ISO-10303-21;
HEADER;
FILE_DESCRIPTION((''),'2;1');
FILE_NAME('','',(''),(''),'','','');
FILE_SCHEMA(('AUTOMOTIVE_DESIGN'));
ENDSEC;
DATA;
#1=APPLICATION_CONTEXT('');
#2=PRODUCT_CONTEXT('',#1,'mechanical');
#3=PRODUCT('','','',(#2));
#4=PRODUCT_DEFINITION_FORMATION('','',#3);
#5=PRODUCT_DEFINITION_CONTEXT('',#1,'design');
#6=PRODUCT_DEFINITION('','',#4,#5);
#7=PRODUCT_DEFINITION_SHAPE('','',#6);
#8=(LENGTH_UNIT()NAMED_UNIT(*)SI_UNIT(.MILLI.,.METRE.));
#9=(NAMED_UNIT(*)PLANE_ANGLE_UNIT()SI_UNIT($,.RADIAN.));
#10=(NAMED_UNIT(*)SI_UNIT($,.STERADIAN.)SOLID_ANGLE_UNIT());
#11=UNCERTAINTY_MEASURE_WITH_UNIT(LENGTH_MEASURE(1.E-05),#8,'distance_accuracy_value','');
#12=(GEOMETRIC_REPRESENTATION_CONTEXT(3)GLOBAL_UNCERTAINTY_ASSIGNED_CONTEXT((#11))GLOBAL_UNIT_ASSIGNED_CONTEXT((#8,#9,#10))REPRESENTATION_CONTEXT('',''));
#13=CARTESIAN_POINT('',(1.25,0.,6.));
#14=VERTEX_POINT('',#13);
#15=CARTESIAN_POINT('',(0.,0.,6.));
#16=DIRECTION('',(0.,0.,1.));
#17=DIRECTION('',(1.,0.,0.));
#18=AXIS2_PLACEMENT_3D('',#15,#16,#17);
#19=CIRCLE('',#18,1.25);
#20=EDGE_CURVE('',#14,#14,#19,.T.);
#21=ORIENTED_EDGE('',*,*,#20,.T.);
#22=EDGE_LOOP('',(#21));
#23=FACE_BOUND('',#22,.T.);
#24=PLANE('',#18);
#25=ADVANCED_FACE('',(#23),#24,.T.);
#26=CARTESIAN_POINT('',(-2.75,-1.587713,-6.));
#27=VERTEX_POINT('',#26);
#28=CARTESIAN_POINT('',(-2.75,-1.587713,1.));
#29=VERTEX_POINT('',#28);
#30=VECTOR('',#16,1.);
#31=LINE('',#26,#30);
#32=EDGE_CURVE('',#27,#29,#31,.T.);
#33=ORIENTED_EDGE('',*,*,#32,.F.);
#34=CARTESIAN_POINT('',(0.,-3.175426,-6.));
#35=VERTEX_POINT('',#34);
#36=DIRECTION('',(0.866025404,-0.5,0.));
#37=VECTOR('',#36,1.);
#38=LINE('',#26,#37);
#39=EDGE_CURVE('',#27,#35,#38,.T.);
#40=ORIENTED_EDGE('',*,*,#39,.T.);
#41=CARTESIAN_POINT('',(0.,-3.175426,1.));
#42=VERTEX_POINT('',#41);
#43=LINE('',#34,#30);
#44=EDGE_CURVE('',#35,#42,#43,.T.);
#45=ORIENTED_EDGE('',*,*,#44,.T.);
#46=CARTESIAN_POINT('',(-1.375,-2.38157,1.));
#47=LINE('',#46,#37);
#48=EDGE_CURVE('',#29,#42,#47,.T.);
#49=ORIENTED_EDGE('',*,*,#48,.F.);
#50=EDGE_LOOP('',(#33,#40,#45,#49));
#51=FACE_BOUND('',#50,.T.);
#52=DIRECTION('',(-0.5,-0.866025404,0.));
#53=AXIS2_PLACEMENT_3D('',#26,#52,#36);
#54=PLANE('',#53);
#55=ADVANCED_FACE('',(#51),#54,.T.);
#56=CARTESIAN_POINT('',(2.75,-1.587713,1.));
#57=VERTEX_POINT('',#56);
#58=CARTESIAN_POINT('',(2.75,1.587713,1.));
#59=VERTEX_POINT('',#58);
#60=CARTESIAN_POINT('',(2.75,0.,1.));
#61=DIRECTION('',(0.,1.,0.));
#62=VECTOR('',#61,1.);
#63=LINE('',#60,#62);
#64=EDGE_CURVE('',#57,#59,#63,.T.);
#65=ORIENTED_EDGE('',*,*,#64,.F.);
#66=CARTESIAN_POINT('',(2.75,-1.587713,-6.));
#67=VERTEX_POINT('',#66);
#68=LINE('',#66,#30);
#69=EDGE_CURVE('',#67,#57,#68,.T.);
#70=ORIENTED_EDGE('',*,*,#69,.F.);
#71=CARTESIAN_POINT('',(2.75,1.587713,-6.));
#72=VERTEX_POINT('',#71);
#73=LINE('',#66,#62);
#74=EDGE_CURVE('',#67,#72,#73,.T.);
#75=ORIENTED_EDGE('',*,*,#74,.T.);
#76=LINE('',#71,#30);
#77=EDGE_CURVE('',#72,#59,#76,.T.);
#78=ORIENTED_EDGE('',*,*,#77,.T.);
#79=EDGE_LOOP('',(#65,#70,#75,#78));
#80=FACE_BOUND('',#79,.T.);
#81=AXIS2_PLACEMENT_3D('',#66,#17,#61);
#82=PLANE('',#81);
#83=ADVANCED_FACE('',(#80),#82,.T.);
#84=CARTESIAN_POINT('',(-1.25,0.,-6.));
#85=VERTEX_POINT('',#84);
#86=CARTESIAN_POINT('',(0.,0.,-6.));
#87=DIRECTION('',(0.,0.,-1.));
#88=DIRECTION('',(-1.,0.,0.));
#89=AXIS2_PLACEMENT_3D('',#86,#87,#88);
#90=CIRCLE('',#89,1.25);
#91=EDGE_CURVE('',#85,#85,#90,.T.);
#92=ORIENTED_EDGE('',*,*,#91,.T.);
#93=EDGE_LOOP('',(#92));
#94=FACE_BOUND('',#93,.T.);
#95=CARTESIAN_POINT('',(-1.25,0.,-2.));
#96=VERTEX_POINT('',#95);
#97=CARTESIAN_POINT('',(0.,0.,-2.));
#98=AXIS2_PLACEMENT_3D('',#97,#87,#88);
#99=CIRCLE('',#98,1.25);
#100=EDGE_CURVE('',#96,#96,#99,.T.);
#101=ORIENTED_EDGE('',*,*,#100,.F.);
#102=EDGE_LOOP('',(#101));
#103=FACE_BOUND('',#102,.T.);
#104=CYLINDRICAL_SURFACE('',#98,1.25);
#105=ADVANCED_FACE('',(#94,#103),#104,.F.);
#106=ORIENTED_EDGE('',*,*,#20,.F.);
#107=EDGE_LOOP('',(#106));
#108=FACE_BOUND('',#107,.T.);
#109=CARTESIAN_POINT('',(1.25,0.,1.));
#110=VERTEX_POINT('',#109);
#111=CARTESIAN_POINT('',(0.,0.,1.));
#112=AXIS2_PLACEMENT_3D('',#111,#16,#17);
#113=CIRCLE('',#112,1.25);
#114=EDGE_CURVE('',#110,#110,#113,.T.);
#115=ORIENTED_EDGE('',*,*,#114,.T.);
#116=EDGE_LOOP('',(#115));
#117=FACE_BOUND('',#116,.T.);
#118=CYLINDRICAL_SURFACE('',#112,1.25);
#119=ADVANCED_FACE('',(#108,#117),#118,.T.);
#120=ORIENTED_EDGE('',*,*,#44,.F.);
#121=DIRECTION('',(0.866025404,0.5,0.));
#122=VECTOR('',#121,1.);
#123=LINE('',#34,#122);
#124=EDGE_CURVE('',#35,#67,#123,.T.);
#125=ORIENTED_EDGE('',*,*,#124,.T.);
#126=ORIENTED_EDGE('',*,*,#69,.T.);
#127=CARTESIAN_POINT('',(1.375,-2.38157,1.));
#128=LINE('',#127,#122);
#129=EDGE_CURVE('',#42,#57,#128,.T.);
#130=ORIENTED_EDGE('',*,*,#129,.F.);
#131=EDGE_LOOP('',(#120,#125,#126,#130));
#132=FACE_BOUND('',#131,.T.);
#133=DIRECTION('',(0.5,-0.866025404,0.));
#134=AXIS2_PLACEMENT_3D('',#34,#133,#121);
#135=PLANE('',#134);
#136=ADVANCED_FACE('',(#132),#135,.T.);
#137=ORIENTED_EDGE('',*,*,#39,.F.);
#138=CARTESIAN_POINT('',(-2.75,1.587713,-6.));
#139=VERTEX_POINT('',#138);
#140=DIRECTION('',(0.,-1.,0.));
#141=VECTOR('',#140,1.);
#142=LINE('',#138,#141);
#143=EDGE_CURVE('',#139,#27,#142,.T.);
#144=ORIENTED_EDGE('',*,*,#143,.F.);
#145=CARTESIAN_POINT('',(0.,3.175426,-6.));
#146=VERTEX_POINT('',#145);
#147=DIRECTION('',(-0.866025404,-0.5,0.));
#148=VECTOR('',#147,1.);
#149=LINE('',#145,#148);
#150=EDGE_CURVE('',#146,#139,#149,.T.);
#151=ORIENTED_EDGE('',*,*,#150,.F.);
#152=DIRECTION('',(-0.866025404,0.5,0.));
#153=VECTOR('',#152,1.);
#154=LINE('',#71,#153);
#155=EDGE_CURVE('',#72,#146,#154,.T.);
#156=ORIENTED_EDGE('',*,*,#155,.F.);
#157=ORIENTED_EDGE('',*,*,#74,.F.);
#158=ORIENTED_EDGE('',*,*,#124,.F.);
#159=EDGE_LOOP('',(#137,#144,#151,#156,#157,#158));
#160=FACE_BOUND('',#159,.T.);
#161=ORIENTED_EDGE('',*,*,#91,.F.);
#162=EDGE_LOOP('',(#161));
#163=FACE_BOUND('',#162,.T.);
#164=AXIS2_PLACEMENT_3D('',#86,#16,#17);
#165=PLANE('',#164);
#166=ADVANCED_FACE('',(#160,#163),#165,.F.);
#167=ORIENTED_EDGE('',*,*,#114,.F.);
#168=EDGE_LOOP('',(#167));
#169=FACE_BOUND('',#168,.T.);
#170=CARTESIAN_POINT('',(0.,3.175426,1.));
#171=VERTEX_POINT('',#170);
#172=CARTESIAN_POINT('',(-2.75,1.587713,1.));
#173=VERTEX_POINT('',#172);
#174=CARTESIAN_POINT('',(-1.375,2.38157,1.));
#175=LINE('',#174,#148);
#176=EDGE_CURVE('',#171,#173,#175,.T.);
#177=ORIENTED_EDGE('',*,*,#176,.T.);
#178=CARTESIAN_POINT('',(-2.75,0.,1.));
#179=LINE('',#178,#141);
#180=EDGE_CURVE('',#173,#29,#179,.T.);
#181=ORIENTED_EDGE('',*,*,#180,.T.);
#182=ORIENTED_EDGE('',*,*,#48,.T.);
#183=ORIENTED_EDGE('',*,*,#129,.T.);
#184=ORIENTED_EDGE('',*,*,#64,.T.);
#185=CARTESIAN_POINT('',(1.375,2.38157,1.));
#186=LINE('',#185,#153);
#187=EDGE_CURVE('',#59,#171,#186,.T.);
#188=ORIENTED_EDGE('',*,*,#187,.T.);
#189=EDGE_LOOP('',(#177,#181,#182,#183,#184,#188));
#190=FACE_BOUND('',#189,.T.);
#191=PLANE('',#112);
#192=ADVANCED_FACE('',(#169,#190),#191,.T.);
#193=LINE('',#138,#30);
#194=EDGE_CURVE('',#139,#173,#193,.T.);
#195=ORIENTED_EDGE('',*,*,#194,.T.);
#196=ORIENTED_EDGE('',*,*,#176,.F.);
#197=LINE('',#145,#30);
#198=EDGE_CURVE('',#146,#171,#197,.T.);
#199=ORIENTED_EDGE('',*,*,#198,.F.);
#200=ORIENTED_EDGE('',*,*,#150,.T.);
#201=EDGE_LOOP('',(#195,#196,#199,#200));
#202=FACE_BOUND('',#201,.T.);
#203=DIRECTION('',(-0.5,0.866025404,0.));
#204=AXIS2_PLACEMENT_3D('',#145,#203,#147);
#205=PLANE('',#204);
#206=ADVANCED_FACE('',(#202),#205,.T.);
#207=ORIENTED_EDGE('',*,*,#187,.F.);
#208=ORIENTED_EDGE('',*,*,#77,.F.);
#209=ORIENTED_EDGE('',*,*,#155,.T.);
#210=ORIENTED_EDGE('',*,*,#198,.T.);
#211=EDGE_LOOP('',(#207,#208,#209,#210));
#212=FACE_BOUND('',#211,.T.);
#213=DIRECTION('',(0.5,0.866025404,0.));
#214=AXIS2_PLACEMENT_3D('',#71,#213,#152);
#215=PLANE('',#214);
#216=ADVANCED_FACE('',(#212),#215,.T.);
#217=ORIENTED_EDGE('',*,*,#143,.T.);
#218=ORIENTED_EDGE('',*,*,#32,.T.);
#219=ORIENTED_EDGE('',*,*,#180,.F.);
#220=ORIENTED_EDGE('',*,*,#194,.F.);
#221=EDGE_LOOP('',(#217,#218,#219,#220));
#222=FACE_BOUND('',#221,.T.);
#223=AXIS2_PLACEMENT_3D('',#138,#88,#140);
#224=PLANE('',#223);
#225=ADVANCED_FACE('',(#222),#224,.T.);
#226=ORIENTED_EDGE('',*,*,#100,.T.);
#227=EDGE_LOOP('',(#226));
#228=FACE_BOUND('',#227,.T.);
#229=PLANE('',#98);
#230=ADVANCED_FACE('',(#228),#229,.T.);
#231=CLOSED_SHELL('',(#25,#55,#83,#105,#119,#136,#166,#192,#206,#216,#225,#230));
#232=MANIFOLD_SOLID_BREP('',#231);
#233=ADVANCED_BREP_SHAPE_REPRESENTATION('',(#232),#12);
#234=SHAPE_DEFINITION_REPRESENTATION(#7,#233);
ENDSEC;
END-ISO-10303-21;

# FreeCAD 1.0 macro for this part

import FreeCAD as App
import Part
import Sketcher
Q = App.Units.Quantity


def add_polygon(sketch, points):
    """Adds a closed chain of lines whose ends are joined by coincident constraints."""
    first, n = sketch.GeometryCount, len(points)
    for a, b in zip(points, points[1:] + points[:1]):
        sketch.addGeometry(Part.LineSegment(App.Vector(*a, 0), App.Vector(*b, 0)), False)
    for i in range(n):
        sketch.addConstraint(Sketcher.Constraint("Coincident", first + i, 2, first + (i + 1) % n, 1))

doc = App.newDocument("Part")
body = doc.addObject("PartDesign::Body", "Body")

# Sketch on XY plane
sketch1 = doc.addObject("Sketcher::SketchObject", "Sketch")
body.addObject(sketch1)
sketch1.AttachmentSupport = (doc.XY_Plane, [""])
sketch1.MapMode = "FlatFace"
add_polygon(sketch1, [(0, 3.2), (-2.8, 1.6), (-2.8, -1.6), (0, -3.2), (2.8, -1.6), (2.8, 1.6)])  # lines 0-5
sketch1.addConstraint([
    Sketcher.Constraint("Vertical", 1),
    Sketcher.Constraint("Vertical", 4),
    Sketcher.Constraint("Symmetric", 0, 2, 3, 2, -1, 1),
    Sketcher.Constraint("Symmetric", 2, 2, 5, 2, -1, 1),
    Sketcher.Constraint("PointOnObject", 2, 2, -2),
    Sketcher.Constraint("Parallel", 2, 5),
    Sketcher.Constraint("Horizontal", 1, 2, 3, 2),
    Sketcher.Constraint("Angle", 0, Q("-150 deg")),
    Sketcher.Constraint("DistanceX", 1, 2, 3, 2, 5.5),
    Sketcher.Constraint("DistanceY", 1, 2, 1, 1, 3.175426),
])
pad1 = doc.addObject("PartDesign::Pad", "Pad")
body.addObject(pad1)
pad1.Profile = sketch1
pad1.Type = "TwoLengths"
pad1.Length = 6
pad1.Length2 = 6

# Sketch on XY plane
sketch2 = doc.addObject("Sketcher::SketchObject", "Sketch001")
body.addObject(sketch2)
sketch2.AttachmentSupport = (doc.XY_Plane, [""])
sketch2.MapMode = "FlatFace"
sketch2.AttachmentOffset = App.Placement(App.Vector(0, 0, -6), App.Rotation())
sketch2.addGeometry(Part.Circle(App.Vector(0, 0, 0), App.Vector(0, 0, 1), 1.2), False)
sketch2.addConstraint([
    Sketcher.Constraint("Coincident", 0, 3, -1, 1),
    Sketcher.Constraint("Diameter", 0, 2.5),
])
pocket1 = doc.addObject("PartDesign::Pocket", "Pocket")
body.addObject(pocket1)
pocket1.Profile = sketch2
pocket1.Length = 4
pocket1.Reversed = True

# Sketch on XY plane
sketch3 = doc.addObject("Sketcher::SketchObject", "Sketch002")
body.addObject(sketch3)
sketch3.AttachmentSupport = (doc.XY_Plane, [""])
sketch3.MapMode = "FlatFace"
sketch3.AttachmentOffset = App.Placement(App.Vector(0, 0, 6), App.Rotation())
add_polygon(sketch3, [(2.8, -1.6), (2.8, 1.6), (0, 3.2), (-2.8, 1.6), (-2.8, -1.6), (0, -3.2)])  # lines 0-5
sketch3.addGeometry(Part.Circle(App.Vector(0, 0, 0), App.Vector(0, 0, 1), 1.2), False)  # 6
sketch3.addConstraint([
    Sketcher.Constraint("Vertical", 0),
    Sketcher.Constraint("Vertical", 3),
    Sketcher.Constraint("Coincident", 6, 3, -1, 1),
    Sketcher.Constraint("Symmetric", 0, 2, 3, 2, -1, 1),
    Sketcher.Constraint("Symmetric", 1, 2, 4, 2, -1, 1),
    Sketcher.Constraint("PointOnObject", 1, 2, -2),
    Sketcher.Constraint("Parallel", 2, 5),
    Sketcher.Constraint("Horizontal", 0, 2, 2, 2),
    Sketcher.Constraint("Diameter", 6, 2.5),
    Sketcher.Constraint("Angle", 1, Q("150 deg")),
    Sketcher.Constraint("DistanceX", 2, 2, 0, 2, 5.5),
    Sketcher.Constraint("DistanceY", 0, 1, 0, 2, 3.175426),
])
pocket2 = doc.addObject("PartDesign::Pocket", "Pocket001")
body.addObject(pocket2)
pocket2.Profile = sketch3
pocket2.Length = 5

doc.recompute()
